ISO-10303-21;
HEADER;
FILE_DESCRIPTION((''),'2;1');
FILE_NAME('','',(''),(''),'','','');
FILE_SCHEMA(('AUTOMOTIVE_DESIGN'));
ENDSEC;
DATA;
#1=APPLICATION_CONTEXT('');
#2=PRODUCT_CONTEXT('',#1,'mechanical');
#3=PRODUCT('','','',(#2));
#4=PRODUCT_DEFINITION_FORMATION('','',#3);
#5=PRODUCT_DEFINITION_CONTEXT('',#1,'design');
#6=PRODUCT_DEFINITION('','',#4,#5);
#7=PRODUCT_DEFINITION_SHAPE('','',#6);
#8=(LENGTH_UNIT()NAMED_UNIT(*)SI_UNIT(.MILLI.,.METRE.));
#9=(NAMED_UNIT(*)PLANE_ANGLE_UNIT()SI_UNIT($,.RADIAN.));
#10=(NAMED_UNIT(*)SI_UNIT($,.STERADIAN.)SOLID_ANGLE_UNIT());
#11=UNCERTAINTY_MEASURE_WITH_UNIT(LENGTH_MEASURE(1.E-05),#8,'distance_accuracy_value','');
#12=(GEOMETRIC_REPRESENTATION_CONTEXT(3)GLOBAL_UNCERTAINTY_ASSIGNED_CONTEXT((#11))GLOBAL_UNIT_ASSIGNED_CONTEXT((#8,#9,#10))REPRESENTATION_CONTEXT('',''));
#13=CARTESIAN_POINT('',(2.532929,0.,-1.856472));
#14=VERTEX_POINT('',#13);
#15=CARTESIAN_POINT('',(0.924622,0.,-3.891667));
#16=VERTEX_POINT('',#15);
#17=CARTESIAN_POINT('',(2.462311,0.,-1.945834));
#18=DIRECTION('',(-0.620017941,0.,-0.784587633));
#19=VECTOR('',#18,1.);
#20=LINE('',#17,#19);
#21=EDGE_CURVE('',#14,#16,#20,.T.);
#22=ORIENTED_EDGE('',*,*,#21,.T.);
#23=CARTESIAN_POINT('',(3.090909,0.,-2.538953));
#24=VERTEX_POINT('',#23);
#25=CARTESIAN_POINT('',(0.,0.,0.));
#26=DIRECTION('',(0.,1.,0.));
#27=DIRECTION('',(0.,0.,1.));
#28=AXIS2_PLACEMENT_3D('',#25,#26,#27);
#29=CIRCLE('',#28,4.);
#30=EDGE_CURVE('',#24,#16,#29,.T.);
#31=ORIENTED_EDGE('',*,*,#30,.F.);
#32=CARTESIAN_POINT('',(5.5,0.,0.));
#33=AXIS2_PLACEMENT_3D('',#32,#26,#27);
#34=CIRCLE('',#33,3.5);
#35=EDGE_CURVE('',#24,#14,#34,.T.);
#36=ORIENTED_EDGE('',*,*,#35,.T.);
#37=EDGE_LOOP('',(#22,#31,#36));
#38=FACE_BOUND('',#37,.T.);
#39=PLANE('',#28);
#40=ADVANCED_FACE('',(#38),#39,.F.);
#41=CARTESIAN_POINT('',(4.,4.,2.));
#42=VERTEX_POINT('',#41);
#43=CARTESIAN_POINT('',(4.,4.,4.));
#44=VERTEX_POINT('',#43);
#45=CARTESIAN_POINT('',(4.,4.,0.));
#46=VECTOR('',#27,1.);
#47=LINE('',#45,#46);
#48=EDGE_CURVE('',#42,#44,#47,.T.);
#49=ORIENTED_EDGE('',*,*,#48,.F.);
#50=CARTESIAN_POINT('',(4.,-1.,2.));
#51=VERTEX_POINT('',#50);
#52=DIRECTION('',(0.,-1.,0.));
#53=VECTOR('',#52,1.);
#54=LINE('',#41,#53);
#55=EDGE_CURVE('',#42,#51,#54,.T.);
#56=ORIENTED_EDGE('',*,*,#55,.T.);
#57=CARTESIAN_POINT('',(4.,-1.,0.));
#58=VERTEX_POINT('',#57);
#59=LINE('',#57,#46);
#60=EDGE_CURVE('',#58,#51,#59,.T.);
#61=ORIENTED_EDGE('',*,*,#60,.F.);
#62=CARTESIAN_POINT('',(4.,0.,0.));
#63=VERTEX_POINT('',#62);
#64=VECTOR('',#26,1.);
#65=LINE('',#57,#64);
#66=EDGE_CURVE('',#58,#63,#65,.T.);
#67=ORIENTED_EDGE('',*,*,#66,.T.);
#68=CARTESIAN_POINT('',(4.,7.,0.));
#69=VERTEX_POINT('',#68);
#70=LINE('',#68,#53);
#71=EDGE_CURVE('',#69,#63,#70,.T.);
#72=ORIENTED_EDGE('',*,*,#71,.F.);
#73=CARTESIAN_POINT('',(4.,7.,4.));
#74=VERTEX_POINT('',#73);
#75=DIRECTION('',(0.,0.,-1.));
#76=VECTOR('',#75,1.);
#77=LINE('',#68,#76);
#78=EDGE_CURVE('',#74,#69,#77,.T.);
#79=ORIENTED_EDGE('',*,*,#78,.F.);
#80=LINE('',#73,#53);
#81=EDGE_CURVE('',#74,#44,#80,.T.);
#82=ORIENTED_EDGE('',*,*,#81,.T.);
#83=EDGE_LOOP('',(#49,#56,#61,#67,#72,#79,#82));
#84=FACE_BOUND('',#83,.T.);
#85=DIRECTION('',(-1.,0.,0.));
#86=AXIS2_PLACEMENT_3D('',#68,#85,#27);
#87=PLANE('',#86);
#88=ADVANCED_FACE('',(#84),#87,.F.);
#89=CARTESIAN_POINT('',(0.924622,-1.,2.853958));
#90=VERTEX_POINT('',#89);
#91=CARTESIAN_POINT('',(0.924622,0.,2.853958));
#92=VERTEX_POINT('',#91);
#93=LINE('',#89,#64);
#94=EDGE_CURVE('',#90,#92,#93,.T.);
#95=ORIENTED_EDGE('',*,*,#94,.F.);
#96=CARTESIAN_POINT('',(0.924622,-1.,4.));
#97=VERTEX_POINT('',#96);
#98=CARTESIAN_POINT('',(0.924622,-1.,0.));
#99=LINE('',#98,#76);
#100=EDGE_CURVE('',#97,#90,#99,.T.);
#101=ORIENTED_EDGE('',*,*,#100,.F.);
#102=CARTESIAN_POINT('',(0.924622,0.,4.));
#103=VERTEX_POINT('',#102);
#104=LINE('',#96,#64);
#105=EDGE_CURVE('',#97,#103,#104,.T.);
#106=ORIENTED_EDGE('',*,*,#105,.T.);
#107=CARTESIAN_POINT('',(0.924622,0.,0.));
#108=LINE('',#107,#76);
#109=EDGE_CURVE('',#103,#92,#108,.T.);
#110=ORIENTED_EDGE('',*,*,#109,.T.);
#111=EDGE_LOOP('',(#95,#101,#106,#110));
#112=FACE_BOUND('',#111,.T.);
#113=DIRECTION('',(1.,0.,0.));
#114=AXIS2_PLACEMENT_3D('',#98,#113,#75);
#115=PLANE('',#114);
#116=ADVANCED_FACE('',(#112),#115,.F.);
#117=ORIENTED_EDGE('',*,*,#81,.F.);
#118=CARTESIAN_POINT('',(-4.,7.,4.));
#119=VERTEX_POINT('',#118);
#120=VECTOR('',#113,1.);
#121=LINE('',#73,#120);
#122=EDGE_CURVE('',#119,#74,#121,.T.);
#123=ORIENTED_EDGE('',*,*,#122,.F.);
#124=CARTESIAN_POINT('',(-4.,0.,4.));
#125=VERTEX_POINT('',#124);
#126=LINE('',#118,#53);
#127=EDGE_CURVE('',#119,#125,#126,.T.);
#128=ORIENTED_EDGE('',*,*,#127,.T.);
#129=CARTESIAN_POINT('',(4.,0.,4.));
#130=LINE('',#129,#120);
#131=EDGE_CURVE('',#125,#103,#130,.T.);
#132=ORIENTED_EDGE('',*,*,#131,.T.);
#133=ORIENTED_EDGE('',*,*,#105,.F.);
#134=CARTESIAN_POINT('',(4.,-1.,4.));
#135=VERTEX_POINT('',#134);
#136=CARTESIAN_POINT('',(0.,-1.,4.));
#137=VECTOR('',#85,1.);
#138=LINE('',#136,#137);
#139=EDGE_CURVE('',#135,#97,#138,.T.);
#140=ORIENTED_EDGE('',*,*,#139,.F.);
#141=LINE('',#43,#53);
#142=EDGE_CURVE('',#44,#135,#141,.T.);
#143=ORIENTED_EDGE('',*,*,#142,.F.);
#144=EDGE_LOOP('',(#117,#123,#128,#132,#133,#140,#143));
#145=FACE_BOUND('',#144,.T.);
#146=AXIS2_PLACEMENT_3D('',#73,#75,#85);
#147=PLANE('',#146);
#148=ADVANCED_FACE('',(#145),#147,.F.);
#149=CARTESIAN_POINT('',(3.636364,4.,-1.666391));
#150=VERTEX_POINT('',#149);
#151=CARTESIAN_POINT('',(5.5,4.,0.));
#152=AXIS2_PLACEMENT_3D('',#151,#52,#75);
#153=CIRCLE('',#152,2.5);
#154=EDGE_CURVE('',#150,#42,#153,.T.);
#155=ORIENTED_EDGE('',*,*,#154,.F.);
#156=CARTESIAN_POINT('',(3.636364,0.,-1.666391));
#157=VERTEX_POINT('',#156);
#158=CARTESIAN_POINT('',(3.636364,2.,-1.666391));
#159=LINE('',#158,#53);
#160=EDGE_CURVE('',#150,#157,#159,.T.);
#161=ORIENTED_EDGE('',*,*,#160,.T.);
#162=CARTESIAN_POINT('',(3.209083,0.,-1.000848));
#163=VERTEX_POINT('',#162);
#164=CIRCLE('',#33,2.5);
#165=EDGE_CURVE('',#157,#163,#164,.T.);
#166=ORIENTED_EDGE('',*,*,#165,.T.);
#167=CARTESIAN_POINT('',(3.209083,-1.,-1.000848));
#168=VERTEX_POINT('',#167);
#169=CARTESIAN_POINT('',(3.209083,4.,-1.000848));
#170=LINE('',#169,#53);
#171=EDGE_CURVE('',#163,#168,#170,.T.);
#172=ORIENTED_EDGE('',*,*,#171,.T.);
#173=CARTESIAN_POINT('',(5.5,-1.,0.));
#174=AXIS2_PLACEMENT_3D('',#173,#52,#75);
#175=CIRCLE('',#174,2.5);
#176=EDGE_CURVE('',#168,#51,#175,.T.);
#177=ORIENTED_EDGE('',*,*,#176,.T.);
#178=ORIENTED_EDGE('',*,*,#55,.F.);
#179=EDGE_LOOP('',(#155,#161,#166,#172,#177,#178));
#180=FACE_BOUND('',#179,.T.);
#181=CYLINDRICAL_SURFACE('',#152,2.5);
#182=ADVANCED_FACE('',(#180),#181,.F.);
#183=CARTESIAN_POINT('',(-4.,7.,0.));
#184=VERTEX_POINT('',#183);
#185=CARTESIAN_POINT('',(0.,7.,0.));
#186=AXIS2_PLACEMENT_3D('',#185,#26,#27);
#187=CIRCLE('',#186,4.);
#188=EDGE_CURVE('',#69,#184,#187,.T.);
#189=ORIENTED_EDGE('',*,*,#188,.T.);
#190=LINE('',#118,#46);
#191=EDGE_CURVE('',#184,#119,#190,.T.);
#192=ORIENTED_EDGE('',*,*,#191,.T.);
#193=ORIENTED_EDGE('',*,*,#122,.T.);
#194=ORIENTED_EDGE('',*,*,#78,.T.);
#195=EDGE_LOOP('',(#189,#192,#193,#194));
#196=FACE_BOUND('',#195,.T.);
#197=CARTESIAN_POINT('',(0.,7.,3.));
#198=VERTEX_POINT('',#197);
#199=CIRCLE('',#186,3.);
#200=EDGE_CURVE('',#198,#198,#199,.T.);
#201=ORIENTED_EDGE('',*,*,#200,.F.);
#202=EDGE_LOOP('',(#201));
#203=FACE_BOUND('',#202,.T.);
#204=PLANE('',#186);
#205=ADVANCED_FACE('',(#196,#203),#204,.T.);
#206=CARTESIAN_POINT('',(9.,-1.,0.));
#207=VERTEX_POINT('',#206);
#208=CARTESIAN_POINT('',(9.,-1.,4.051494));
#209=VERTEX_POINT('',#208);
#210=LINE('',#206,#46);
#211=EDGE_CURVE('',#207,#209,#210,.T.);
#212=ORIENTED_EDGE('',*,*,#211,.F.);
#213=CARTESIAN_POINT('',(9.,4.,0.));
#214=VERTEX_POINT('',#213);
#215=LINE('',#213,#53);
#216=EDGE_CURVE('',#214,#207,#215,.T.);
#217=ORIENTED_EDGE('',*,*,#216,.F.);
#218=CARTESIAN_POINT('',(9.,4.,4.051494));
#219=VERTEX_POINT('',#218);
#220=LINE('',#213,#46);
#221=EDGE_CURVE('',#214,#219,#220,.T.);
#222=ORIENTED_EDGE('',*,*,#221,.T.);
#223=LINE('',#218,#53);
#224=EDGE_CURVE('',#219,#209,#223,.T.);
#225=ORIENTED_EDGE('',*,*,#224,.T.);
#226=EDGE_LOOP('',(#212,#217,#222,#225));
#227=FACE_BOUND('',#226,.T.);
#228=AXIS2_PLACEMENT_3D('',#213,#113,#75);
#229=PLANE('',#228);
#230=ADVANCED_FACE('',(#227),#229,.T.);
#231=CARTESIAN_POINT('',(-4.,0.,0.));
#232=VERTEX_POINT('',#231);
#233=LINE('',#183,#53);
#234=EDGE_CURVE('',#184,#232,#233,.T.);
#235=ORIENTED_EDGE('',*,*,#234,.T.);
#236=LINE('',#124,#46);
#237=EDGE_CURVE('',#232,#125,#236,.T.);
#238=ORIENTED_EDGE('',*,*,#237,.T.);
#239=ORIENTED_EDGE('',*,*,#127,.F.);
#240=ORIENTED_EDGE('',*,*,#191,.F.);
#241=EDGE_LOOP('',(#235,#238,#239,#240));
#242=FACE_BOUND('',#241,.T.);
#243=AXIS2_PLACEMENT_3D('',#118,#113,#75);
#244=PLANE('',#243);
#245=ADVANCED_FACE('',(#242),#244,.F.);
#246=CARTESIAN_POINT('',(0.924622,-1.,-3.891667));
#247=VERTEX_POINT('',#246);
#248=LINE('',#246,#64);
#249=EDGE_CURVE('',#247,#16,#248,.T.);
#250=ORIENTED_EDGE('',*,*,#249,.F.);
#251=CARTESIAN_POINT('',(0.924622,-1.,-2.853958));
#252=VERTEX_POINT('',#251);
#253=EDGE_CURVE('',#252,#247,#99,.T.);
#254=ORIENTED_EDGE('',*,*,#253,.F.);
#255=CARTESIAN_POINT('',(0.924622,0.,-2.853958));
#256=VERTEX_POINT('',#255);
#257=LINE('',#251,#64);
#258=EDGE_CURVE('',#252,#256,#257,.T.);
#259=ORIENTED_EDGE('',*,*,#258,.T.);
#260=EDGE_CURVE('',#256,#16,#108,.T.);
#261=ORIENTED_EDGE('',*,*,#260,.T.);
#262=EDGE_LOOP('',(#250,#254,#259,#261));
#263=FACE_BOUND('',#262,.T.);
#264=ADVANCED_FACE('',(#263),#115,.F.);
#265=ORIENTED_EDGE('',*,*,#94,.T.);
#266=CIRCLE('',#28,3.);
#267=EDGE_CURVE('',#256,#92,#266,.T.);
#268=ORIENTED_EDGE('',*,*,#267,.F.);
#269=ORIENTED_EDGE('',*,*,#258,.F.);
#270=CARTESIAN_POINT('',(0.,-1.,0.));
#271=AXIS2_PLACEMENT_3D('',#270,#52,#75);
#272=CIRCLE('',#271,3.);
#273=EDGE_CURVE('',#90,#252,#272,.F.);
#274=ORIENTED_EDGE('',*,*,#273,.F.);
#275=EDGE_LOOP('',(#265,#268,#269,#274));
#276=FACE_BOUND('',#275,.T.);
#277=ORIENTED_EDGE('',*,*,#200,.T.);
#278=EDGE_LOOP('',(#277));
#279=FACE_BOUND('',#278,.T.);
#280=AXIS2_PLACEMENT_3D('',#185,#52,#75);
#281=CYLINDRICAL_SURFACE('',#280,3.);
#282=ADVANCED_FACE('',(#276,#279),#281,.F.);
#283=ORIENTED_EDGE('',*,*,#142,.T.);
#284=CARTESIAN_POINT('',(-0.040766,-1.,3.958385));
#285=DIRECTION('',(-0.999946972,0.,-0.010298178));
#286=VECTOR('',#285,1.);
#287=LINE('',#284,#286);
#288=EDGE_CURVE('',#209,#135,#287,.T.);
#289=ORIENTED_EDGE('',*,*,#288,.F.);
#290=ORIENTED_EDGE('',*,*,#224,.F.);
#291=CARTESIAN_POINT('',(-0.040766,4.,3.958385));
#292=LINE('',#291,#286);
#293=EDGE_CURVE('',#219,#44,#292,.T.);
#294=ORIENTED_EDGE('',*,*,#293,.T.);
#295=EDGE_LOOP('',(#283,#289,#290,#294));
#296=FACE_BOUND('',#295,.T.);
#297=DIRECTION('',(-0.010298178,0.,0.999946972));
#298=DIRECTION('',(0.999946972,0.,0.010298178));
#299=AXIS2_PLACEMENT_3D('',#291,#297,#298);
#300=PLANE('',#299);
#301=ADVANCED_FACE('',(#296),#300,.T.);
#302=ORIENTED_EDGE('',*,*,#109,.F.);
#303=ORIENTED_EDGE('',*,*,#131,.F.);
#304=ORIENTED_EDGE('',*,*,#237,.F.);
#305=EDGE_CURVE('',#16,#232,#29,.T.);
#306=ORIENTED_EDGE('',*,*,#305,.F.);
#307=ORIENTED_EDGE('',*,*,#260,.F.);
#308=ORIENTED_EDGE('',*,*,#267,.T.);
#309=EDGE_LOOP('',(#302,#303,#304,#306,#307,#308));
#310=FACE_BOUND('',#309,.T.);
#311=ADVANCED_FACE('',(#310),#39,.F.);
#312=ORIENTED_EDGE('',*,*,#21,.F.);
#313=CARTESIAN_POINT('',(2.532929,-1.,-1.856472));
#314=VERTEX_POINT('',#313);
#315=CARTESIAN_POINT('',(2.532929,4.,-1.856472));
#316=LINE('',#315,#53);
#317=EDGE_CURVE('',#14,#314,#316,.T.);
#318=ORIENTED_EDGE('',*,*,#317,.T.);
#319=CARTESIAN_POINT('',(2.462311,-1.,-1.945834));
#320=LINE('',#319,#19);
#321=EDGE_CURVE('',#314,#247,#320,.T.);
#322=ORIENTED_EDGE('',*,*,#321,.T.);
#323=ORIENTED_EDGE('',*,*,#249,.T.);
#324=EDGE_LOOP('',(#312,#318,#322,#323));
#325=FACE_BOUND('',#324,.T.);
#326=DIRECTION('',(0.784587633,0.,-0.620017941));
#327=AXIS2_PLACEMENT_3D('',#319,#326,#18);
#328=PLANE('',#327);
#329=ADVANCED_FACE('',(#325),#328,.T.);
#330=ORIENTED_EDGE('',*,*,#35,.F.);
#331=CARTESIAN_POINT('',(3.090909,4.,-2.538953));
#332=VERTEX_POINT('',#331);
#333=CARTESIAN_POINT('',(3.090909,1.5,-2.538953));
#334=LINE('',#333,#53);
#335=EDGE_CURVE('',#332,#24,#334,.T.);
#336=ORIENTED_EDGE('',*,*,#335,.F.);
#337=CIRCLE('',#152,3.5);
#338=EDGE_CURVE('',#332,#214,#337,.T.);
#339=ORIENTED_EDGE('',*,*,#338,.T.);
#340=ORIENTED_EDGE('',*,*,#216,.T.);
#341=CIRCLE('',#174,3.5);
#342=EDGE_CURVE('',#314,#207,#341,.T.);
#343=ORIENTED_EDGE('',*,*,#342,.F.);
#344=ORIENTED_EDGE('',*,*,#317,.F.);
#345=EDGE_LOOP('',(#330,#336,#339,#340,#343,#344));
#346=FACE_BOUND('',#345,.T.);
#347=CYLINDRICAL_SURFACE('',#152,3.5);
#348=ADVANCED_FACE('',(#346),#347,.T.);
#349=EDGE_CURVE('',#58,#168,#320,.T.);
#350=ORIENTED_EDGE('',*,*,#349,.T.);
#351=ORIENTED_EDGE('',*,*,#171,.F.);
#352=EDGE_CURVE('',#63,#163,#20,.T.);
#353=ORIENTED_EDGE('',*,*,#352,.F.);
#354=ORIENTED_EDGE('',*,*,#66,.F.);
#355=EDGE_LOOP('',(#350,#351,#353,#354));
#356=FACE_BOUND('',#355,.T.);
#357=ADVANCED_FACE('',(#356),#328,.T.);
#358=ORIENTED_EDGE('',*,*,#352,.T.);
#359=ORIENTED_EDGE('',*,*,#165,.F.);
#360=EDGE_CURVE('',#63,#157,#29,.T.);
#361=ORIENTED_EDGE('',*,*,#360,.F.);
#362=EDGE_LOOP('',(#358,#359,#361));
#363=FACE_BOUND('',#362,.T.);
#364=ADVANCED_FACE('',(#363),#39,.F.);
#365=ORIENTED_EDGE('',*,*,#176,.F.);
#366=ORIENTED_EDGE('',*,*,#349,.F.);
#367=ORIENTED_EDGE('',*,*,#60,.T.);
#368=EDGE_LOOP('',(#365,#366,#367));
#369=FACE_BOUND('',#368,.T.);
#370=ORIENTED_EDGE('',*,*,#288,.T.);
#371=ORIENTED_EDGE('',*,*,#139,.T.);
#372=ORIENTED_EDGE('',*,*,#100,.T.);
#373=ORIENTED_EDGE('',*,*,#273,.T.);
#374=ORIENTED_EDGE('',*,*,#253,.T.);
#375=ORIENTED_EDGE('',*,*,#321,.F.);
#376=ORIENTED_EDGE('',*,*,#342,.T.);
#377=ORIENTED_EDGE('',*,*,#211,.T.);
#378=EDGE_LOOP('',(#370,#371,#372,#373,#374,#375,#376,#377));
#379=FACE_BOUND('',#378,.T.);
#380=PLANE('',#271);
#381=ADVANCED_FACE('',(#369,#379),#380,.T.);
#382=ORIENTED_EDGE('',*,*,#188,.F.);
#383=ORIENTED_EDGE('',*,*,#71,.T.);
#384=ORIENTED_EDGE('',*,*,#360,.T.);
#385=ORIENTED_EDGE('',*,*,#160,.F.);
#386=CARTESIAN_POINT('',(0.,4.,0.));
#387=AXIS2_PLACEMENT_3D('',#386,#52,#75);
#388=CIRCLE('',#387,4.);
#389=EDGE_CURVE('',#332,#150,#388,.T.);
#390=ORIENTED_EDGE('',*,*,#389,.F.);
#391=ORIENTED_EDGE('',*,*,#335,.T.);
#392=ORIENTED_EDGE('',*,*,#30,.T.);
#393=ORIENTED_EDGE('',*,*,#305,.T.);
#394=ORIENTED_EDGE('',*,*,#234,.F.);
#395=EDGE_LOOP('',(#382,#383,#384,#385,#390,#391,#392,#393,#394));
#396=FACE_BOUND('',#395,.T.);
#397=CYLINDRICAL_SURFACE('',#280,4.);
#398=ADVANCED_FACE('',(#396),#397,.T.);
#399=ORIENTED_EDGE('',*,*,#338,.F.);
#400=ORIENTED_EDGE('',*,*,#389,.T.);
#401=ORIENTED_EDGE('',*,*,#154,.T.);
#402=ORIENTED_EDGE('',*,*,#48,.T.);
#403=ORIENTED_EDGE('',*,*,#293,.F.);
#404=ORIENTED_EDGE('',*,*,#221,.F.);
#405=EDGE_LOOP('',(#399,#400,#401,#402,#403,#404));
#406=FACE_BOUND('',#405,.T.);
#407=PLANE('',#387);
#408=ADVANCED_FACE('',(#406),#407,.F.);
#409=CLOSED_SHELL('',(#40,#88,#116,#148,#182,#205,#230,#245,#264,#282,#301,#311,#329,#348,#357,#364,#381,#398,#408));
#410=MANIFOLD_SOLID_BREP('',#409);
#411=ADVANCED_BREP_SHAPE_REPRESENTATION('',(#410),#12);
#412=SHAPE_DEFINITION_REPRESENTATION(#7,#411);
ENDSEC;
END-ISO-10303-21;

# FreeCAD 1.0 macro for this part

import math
import FreeCAD as App
import Part
import Sketcher

V = App.Vector

doc = App.newDocument("Part")
body = doc.addObject("PartDesign::Body", "Body")

# Sketch on XZ plane
sketch1 = body.newObject("Sketcher::SketchObject", "Sketch")
sketch1.AttachmentSupport = (doc.getObject("XZ_Plane"), [""])
sketch1.MapMode = "FlatFace"
sketch1.addGeometry([
    Part.LineSegment(V(4, 4, 0), V(4, 0, 0)),  # 0
    Part.ArcOfCircle(Part.Circle(V(0, 0, 0), V(0, 0, 1), 4), math.radians(180), math.radians(360)),  # 1
    Part.LineSegment(V(-4, 0, 0), V(-4, 4, 0)),  # 2
    Part.LineSegment(V(-4, 4, 0), V(4, 4, 0)),  # 3
    Part.Circle(V(0, 0, 0), V(0, 0, 1), 3),  # 4
], False)
sketch1.addConstraint([
    Sketcher.Constraint("Tangent", 0, 2, 1, 2),
    Sketcher.Constraint("Tangent", 1, 1, 2, 1),
    Sketcher.Constraint("Coincident", 2, 2, 3, 1),
    Sketcher.Constraint("Coincident", 3, 2, 0, 1),
    Sketcher.Constraint("Vertical", 0),
    Sketcher.Constraint("Vertical", 2),
    Sketcher.Constraint("Horizontal", 3),
    Sketcher.Constraint("Coincident", 1, 3, -1, 1),
    Sketcher.Constraint("Coincident", 4, 3, -1, 1),
    Sketcher.Constraint("Diameter", 4, 6.0),
    Sketcher.Constraint("Radius", 1, 4.0),
    Sketcher.Constraint("DistanceY", 0, 2, 0, 1, 4.0),
])
pad1 = body.newObject("PartDesign::Pad", "Pad")
pad1.Profile = sketch1
pad1.Length = 7
pad1.Reversed = True

# Sketch on XZ plane
sketch2 = body.newObject("Sketcher::SketchObject", "Sketch001")
sketch2.AttachmentSupport = (doc.getObject("XZ_Plane"), [""])
sketch2.MapMode = "FlatFace"
sketch2.AttachmentOffset = App.Placement(V(0, 0, 1), App.Rotation())
sketch2.addGeometry([
    Part.LineSegment(V(4, 0, 0), V(4, 4, 0)),  # 0
    Part.LineSegment(V(4, 4, 0), V(0.9, 4, 0)),  # 1
    Part.LineSegment(V(0.9, 4, 0), V(0.9, 2.9, 0)),  # 2
    Part.ArcOfCircle(Part.Circle(V(0, 0, 0), V(0, 0, 1), 3), math.radians(0), math.radians(72)),  # 3
    Part.ArcOfCircle(Part.Circle(V(0, 0, 0), V(0, 0, 1), 3), math.radians(-72), math.radians(0)),  # 4
    Part.LineSegment(V(0.9, -2.9, 0), V(0.9, -3.9, 0)),  # 5
    Part.LineSegment(V(0.9, -3.9, 0), V(4, 0, 0)),  # 6
], False)
sketch2.addConstraint([
    Sketcher.Constraint("Coincident", 0, 2, 1, 1),
    Sketcher.Constraint("Coincident", 1, 2, 2, 1),
    Sketcher.Constraint("Coincident", 2, 2, 3, 2),
    Sketcher.Constraint("Tangent", 3, 1, 4, 2),
    Sketcher.Constraint("Coincident", 4, 1, 5, 1),
    Sketcher.Constraint("Coincident", 5, 2, 6, 1),
    Sketcher.Constraint("Coincident", 6, 2, 0, 1),
    Sketcher.Constraint("Vertical", 0),
    Sketcher.Constraint("Horizontal", 1),
    Sketcher.Constraint("Vertical", 2),
    Sketcher.Constraint("Vertical", 5),
    Sketcher.Constraint("Coincident", 3, 3, -1, 1),
    Sketcher.Constraint("Equal", 3, 4),
    Sketcher.Constraint("PointOnObject", 3, 1, -1),
    Sketcher.Constraint("PointOnObject", 6, 2, -1),
    Sketcher.Constraint("Vertical", 2, 2, 4, 1),
    Sketcher.Constraint("Radius", 3, 3.0),
    Sketcher.Constraint("DistanceY", 0, 1, 0, 2, 4.0),
    Sketcher.Constraint("DistanceX", -1, 1, 0, 2, 4.0),
    Sketcher.Constraint("DistanceY", 5, 2, 5, 1, 1.03771),
    Sketcher.Constraint("DistanceX", 1, 2, 1, 1, 3.075378),
])
pad2 = body.newObject("PartDesign::Pad", "Pad001")
pad2.Profile = sketch2
pad2.Length = 1
pad2.Reversed = True

# Sketch on XZ plane
sketch3 = body.newObject("Sketcher::SketchObject", "Sketch002")
sketch3.AttachmentSupport = (doc.getObject("XZ_Plane"), [""])
sketch3.MapMode = "FlatFace"
sketch3.AttachmentOffset = App.Placement(V(0, 0, 1), App.Rotation())
sketch3.addGeometry([
    Part.LineSegment(V(3.2, -1, 0), V(2.5, -1.9, 0)),  # 0
    Part.ArcOfCircle(Part.Circle(V(5.5, 0, 0), V(0, 0, 1), 3.5), math.radians(-148), math.radians(0)),  # 1
    Part.LineSegment(V(9, 0, 0), V(9, 4.1, 0)),  # 2
    Part.LineSegment(V(9, 4.1, 0), V(4, 4, 0)),  # 3
    Part.LineSegment(V(4, 4, 0), V(4, 2, 0)),  # 4
    Part.ArcOfCircle(Part.Circle(V(5.5, 0, 0), V(0, 0, 1), 2.5), math.radians(0), math.radians(127)),  # 5
    Part.ArcOfCircle(Part.Circle(V(5.5, 0, 0), V(0, 0, 1), 2.5), math.radians(-156), math.radians(0)),  # 6
], False)
sketch3.addConstraint([
    Sketcher.Constraint("Coincident", 0, 2, 1, 1),
    Sketcher.Constraint("Tangent", 1, 2, 2, 1),
    Sketcher.Constraint("Coincident", 2, 2, 3, 1),
    Sketcher.Constraint("Coincident", 3, 2, 4, 1),
    Sketcher.Constraint("Coincident", 4, 2, 5, 2),
    Sketcher.Constraint("Tangent", 5, 1, 6, 2),
    Sketcher.Constraint("Coincident", 6, 1, 0, 1),
    Sketcher.Constraint("Vertical", 2),
    Sketcher.Constraint("Vertical", 4),
    Sketcher.Constraint("Coincident", 5, 3, 1, 3),
    Sketcher.Constraint("Equal", 5, 6),
    Sketcher.Constraint("PointOnObject", 1, 3, -1),
    Sketcher.Constraint("PointOnObject", 5, 1, -1),
    Sketcher.Constraint("Radius", 1, 3.5),
    Sketcher.Constraint("Radius", 5, 2.5),
    Sketcher.Constraint("DistanceY", 4, 2, 4, 1, 2.0),
    Sketcher.Constraint("DistanceX", -1, 1, 1, 2, 9.0),
    Sketcher.Constraint("DistanceX", -1, 1, 3, 2, 4.0),
    Sketcher.Constraint("Distance", 0, 1.090539),
    Sketcher.Constraint("DistanceY", 2, 1, 2, 2, 4.051494),
    Sketcher.Constraint("DistanceX", -1, 1, 0, 2, 2.532929),
])
pad3 = body.newObject("PartDesign::Pad", "Pad002")
pad3.Profile = sketch3
pad3.Length = 5
pad3.Reversed = True

doc.recompute()
